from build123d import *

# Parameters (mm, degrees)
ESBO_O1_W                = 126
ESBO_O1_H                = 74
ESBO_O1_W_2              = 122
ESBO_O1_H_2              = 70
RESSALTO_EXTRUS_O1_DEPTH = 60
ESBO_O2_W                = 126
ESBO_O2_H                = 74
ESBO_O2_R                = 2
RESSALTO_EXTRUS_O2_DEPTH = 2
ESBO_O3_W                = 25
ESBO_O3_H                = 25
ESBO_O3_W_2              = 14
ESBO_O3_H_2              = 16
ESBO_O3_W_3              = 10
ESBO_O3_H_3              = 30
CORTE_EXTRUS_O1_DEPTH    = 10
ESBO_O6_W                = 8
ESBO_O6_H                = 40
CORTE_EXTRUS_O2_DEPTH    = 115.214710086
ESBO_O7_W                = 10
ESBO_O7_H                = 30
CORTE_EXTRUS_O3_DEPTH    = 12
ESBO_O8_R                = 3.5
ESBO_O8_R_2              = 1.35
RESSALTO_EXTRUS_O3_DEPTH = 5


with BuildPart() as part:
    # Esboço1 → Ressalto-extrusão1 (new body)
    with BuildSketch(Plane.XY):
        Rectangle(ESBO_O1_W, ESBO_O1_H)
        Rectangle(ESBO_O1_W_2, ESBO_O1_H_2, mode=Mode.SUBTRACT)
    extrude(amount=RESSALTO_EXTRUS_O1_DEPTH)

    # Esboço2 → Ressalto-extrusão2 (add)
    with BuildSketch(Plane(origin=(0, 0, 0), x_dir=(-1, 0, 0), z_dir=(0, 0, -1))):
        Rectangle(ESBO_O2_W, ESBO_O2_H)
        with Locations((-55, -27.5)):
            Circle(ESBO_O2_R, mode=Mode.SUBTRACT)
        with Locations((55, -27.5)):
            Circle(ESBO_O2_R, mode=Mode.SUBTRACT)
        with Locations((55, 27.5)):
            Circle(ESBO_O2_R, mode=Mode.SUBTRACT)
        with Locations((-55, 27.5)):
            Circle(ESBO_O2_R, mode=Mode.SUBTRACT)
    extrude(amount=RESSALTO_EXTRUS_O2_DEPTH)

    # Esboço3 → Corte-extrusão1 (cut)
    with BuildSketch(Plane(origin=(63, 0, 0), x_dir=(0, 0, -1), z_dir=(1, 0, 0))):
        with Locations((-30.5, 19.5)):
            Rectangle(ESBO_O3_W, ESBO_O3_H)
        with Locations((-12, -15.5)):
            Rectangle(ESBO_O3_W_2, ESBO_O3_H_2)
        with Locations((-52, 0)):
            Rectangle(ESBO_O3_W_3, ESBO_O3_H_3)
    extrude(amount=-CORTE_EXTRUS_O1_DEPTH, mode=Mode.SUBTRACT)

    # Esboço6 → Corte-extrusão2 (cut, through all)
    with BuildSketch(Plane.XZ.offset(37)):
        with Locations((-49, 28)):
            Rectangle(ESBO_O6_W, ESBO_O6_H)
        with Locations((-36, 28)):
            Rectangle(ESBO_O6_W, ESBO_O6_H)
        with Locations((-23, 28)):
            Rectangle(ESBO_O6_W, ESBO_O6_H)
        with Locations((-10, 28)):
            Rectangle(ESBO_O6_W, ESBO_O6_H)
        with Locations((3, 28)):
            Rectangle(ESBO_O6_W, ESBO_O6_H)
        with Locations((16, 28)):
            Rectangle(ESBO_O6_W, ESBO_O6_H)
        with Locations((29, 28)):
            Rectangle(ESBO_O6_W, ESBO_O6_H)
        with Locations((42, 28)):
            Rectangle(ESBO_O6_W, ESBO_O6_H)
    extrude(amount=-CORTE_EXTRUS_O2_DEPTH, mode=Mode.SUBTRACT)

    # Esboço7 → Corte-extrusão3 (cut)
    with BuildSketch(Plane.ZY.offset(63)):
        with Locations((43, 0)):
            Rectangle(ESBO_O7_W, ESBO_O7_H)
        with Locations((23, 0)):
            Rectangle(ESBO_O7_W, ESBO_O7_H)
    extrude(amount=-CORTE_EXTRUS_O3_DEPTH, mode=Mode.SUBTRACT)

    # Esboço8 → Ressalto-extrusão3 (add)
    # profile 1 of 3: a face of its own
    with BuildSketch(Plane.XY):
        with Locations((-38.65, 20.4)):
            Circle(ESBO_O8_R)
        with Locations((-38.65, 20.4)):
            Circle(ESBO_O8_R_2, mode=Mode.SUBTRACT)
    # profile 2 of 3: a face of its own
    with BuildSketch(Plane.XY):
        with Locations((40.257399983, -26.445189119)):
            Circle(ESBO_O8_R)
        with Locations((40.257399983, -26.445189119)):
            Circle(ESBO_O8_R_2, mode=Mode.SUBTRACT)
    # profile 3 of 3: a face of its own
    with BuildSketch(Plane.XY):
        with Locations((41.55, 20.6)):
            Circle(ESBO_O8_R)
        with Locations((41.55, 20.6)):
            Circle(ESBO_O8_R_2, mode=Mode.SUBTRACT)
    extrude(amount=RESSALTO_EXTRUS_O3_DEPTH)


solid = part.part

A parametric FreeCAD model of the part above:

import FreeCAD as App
import Part
import Sketcher

V = App.Vector
Q = App.Units.Quantity

doc = App.newDocument("Part")
body = doc.addObject("PartDesign::Body", "Body")

sketch1 = body.newObject("Sketcher::SketchObject", "Sketch")
sketch1.AttachmentSupport = (doc.getObject("XY_Plane"), [""])
sketch1.MapMode = "FlatFace"
sketch1.addGeometry(Part.LineSegment(V(-63, 37, 0), V(-63, -37, 0)), False)
sketch1.addGeometry(Part.LineSegment(V(-63, -37, 0), V(63, -37, 0)), False)
sketch1.addGeometry(Part.LineSegment(V(63, -37, 0), V(63, 37, 0)), False)
sketch1.addGeometry(Part.LineSegment(V(63, 37, 0), V(-63, 37, 0)), False)
sketch1.addGeometry(Part.LineSegment(V(61, -35, 0), V(-61, -35, 0)), False)
sketch1.addGeometry(Part.LineSegment(V(-61, -35, 0), V(-61, 35, 0)), False)
sketch1.addGeometry(Part.LineSegment(V(-61, 35, 0), V(61, 35, 0)), False)
sketch1.addGeometry(Part.LineSegment(V(61, 35, 0), V(61, -35, 0)), False)
sketch1.addConstraint(Sketcher.Constraint("Coincident", 0, 2, 1, 1))
sketch1.addConstraint(Sketcher.Constraint("Coincident", 1, 2, 2, 1))
sketch1.addConstraint(Sketcher.Constraint("Coincident", 2, 2, 3, 1))
sketch1.addConstraint(Sketcher.Constraint("Coincident", 3, 2, 0, 1))
sketch1.addConstraint(Sketcher.Constraint("Coincident", 4, 2, 5, 1))
sketch1.addConstraint(Sketcher.Constraint("Coincident", 5, 2, 6, 1))
sketch1.addConstraint(Sketcher.Constraint("Coincident", 6, 2, 7, 1))
sketch1.addConstraint(Sketcher.Constraint("Coincident", 7, 2, 4, 1))
sketch1.addConstraint(Sketcher.Constraint("Vertical", 0))
sketch1.addConstraint(Sketcher.Constraint("Horizontal", 1))
sketch1.addConstraint(Sketcher.Constraint("Vertical", 2))
sketch1.addConstraint(Sketcher.Constraint("Horizontal", 3))
sketch1.addConstraint(Sketcher.Constraint("Horizontal", 4))
sketch1.addConstraint(Sketcher.Constraint("Vertical", 5))
sketch1.addConstraint(Sketcher.Constraint("Horizontal", 6))
sketch1.addConstraint(Sketcher.Constraint("Vertical", 7))
sketch1.addConstraint(Sketcher.Constraint("Symmetric", 0, 2, 2, 2, -1, 1))
sketch1.addConstraint(Sketcher.Constraint("Symmetric", 4, 2, 6, 2, -1, 1))
sketch1.addConstraint(Sketcher.Constraint("DistanceX", 1, 1, 1, 2, Q("126 mm")))
sketch1.addConstraint(Sketcher.Constraint("DistanceX", 4, 2, 4, 1, Q("122 mm")))
sketch1.addConstraint(Sketcher.Constraint("DistanceY", 0, 2, 0, 1, Q("74 mm")))
sketch1.addConstraint(Sketcher.Constraint("DistanceY", 5, 1, 5, 2, Q("70 mm")))
pad1 = body.newObject("PartDesign::Pad", "Pad")
pad1.Profile = sketch1
pad1.Length = 60

sketch2 = body.newObject("Sketcher::SketchObject", "Sketch001")
sketch2.AttachmentSupport = (doc.getObject("XY_Plane"), [""])
sketch2.MapMode = "FlatFace"
sketch2.addGeometry(Part.LineSegment(V(63, 37, 0), V(63, -37, 0)), False)
sketch2.addGeometry(Part.LineSegment(V(63, -37, 0), V(-63, -37, 0)), False)
sketch2.addGeometry(Part.LineSegment(V(-63, -37, 0), V(-63, 37, 0)), False)
sketch2.addGeometry(Part.LineSegment(V(-63, 37, 0), V(63, 37, 0)), False)
sketch2.addGeometry(Part.Circle(V(55, -27.5, 0), V(0, 0, 1), 2), False)
sketch2.addGeometry(Part.Circle(V(-55, -27.5, 0), V(0, 0, 1), 2), False)
sketch2.addGeometry(Part.Circle(V(55, 27.5, 0), V(0, 0, 1), 2), False)
sketch2.addGeometry(Part.Circle(V(-55, 27.5, 0), V(0, 0, 1), 2), False)
sketch2.addConstraint(Sketcher.Constraint("Coincident", 0, 2, 1, 1))
sketch2.addConstraint(Sketcher.Constraint("Coincident", 1, 2, 2, 1))
sketch2.addConstraint(Sketcher.Constraint("Coincident", 2, 2, 3, 1))
sketch2.addConstraint(Sketcher.Constraint("Coincident", 3, 2, 0, 1))
sketch2.addConstraint(Sketcher.Constraint("Vertical", 0))
sketch2.addConstraint(Sketcher.Constraint("Horizontal", 1))
sketch2.addConstraint(Sketcher.Constraint("Vertical", 2))
sketch2.addConstraint(Sketcher.Constraint("Horizontal", 3))
sketch2.addConstraint(Sketcher.Constraint("Equal", 4, 5))
sketch2.addConstraint(Sketcher.Constraint("Equal", 5, 6))
sketch2.addConstraint(Sketcher.Constraint("Equal", 6, 7))
sketch2.addConstraint(Sketcher.Constraint("Symmetric", 5, 3, 6, 3, -1, 1))
sketch2.addConstraint(Sketcher.Constraint("Symmetric", 4, 3, 7, 3, -1, 1))
sketch2.addConstraint(Sketcher.Constraint("Symmetric", 0, 2, 2, 2, -1, 1))
sketch2.addConstraint(Sketcher.Constraint("Symmetric", 4, 3, 5, 3, -2))
sketch2.addConstraint(Sketcher.Constraint("Diameter", 4, Q("4 mm")))
sketch2.addConstraint(Sketcher.Constraint("DistanceX", 1, 2, 1, 1, Q("126 mm")))
sketch2.addConstraint(Sketcher.Constraint("DistanceY", 0, 2, 0, 1, Q("74 mm")))
sketch2.addConstraint(Sketcher.Constraint("DistanceX", -1, 1, 4, 3, Q("55 mm")))
sketch2.addConstraint(Sketcher.Constraint("DistanceY", 4, 3, 6, 3, Q("55 mm")))
pad2 = body.newObject("PartDesign::Pad", "Pad001")
pad2.Profile = sketch2
pad2.Length = 2
pad2.Reversed = True

sketch3 = body.newObject("Sketcher::SketchObject", "Sketch002")
sketch3.AttachmentSupport = (doc.getObject("YZ_Plane"), [""])
sketch3.MapMode = "FlatFace"
sketch3.AttachmentOffset = App.Placement(V(0, 0, 63), App.Rotation())
sketch3.addGeometry(Part.LineSegment(V(32, 43, 0), V(7, 43, 0)), False)
sketch3.addGeometry(Part.LineSegment(V(7, 43, 0), V(7, 18, 0)), False)
sketch3.addGeometry(Part.LineSegment(V(7, 18, 0), V(32, 18, 0)), False)
sketch3.addGeometry(Part.LineSegment(V(32, 18, 0), V(32, 43, 0)), False)
sketch3.addGeometry(Part.LineSegment(V(-8, 19, 0), V(-24, 19, 0)), False)
sketch3.addGeometry(Part.LineSegment(V(-24, 19, 0), V(-24, 5, 0)), False)
sketch3.addGeometry(Part.LineSegment(V(-24, 5, 0), V(-8, 5, 0)), False)
sketch3.addGeometry(Part.LineSegment(V(-8, 5, 0), V(-8, 19, 0)), False)
sketch3.addGeometry(Part.LineSegment(V(15, 57, 0), V(-15, 57, 0)), False)
sketch3.addGeometry(Part.LineSegment(V(-15, 57, 0), V(-15, 47, 0)), False)
sketch3.addGeometry(Part.LineSegment(V(-15, 47, 0), V(15, 47, 0)), False)
sketch3.addGeometry(Part.LineSegment(V(15, 47, 0), V(15, 57, 0)), False)
sketch3.addConstraint(Sketcher.Constraint("Coincident", 0, 2, 1, 1))
sketch3.addConstraint(Sketcher.Constraint("Coincident", 1, 2, 2, 1))
sketch3.addConstraint(Sketcher.Constraint("Coincident", 2, 2, 3, 1))
sketch3.addConstraint(Sketcher.Constraint("Coincident", 3, 2, 0, 1))
sketch3.addConstraint(Sketcher.Constraint("Coincident", 4, 2, 5, 1))
sketch3.addConstraint(Sketcher.Constraint("Coincident", 5, 2, 6, 1))
sketch3.addConstraint(Sketcher.Constraint("Coincident", 6, 2, 7, 1))
sketch3.addConstraint(Sketcher.Constraint("Coincident", 7, 2, 4, 1))
sketch3.addConstraint(Sketcher.Constraint("Coincident", 8, 2, 9, 1))
sketch3.addConstraint(Sketcher.Constraint("Coincident", 9, 2, 10, 1))
sketch3.addConstraint(Sketcher.Constraint("Coincident", 10, 2, 11, 1))
sketch3.addConstraint(Sketcher.Constraint("Coincident", 11, 2, 8, 1))
sketch3.addConstraint(Sketcher.Constraint("Horizontal", 0))
sketch3.addConstraint(Sketcher.Constraint("Vertical", 1))
sketch3.addConstraint(Sketcher.Constraint("Horizontal", 2))
sketch3.addConstraint(Sketcher.Constraint("Vertical", 3))
sketch3.addConstraint(Sketcher.Constraint("Horizontal", 4))
sketch3.addConstraint(Sketcher.Constraint("Vertical", 5))
sketch3.addConstraint(Sketcher.Constraint("Horizontal", 6))
sketch3.addConstraint(Sketcher.Constraint("Vertical", 7))
sketch3.addConstraint(Sketcher.Constraint("Horizontal", 8))
sketch3.addConstraint(Sketcher.Constraint("Vertical", 9))
sketch3.addConstraint(Sketcher.Constraint("Horizontal", 10))
sketch3.addConstraint(Sketcher.Constraint("Vertical", 11))
sketch3.addConstraint(Sketcher.Constraint("Equal", 2, 1))
sketch3.addConstraint(Sketcher.Constraint("DistanceX", 0, 2, 0, 1, Q("25 mm")))
sketch3.addConstraint(Sketcher.Constraint("DistanceX", 4, 2, 4, 1, Q("16 mm")))
sketch3.addConstraint(Sketcher.Constraint("DistanceX", 8, 2, 8, 1, Q("30 mm")))
sketch3.addConstraint(Sketcher.Constraint("DistanceY", 5, 2, 5, 1, Q("14 mm")))
sketch3.addConstraint(Sketcher.Constraint("DistanceY", 9, 2, 9, 1, Q("10 mm")))
sketch3.addConstraint(Sketcher.Constraint("DistanceX", -1, 1, 0, 2, Q("7 mm")))
sketch3.addConstraint(Sketcher.Constraint("DistanceY", -1, 1, 0, 2, Q("43 mm")))
sketch3.addConstraint(Sketcher.Constraint("DistanceY", -1, 1, 4, 2, Q("19 mm")))
sketch3.addConstraint(Sketcher.Constraint("DistanceX", 8, 2, -1, 1, Q("15 mm")))
sketch3.addConstraint(Sketcher.Constraint("DistanceY", -1, 1, 8, 2, Q("57 mm")))
sketch3.addConstraint(Sketcher.Constraint("DistanceX", 4, 2, -1, 1, Q("23.5 mm")))
pocket1 = body.newObject("PartDesign::Pocket", "Pocket")
pocket1.Profile = sketch3
pocket1.Length = 10

sketch4 = body.newObject("Sketcher::SketchObject", "Sketch003")
sketch4.AttachmentSupport = (doc.getObject("XZ_Plane"), [""])
sketch4.MapMode = "FlatFace"
sketch4.AttachmentOffset = App.Placement(V(0, 0, 37), App.Rotation())
sketch4.addGeometry(Part.LineSegment(V(-53, 48, 0), V(-53, 8, 0)), False)
sketch4.addGeometry(Part.LineSegment(V(-53, 8, 0), V(-45, 8, 0)), False)
sketch4.addGeometry(Part.LineSegment(V(-45, 8, 0), V(-45, 48, 0)), False)
sketch4.addGeometry(Part.LineSegment(V(-45, 48, 0), V(-53, 48, 0)), False)
sketch4.addGeometry(Part.LineSegment(V(-40, 48, 0), V(-40, 8, 0)), False)
sketch4.addGeometry(Part.LineSegment(V(-40, 8, 0), V(-32, 8, 0)), False)
sketch4.addGeometry(Part.LineSegment(V(-32, 8, 0), V(-32, 48, 0)), False)
sketch4.addGeometry(Part.LineSegment(V(-32, 48, 0), V(-40, 48, 0)), False)
sketch4.addGeometry(Part.LineSegment(V(-27, 48, 0), V(-27, 8, 0)), False)
sketch4.addGeometry(Part.LineSegment(V(-27, 8, 0), V(-19, 8, 0)), False)
sketch4.addGeometry(Part.LineSegment(V(-19, 8, 0), V(-19, 48, 0)), False)
sketch4.addGeometry(Part.LineSegment(V(-19, 48, 0), V(-27, 48, 0)), False)
sketch4.addGeometry(Part.LineSegment(V(-14, 48, 0), V(-14, 8, 0)), False)
sketch4.addGeometry(Part.LineSegment(V(-14, 8, 0), V(-6, 8, 0)), False)
sketch4.addGeometry(Part.LineSegment(V(-6, 8, 0), V(-6, 48, 0)), False)
sketch4.addGeometry(Part.LineSegment(V(-6, 48, 0), V(-14, 48, 0)), False)
sketch4.addGeometry(Part.LineSegment(V(-1, 48, 0), V(-1, 8, 0)), False)
sketch4.addGeometry(Part.LineSegment(V(-1, 8, 0), V(7, 8, 0)), False)
sketch4.addGeometry(Part.LineSegment(V(7, 8, 0), V(7, 48, 0)), False)
sketch4.addGeometry(Part.LineSegment(V(7, 48, 0), V(-1, 48, 0)), False)
sketch4.addGeometry(Part.LineSegment(V(12, 48, 0), V(12, 8, 0)), False)
sketch4.addGeometry(Part.LineSegment(V(12, 8, 0), V(20, 8, 0)), False)
sketch4.addGeometry(Part.LineSegment(V(20, 8, 0), V(20, 48, 0)), False)
sketch4.addGeometry(Part.LineSegment(V(20, 48, 0), V(12, 48, 0)), False)
sketch4.addGeometry(Part.LineSegment(V(25, 48, 0), V(25, 8, 0)), False)
sketch4.addGeometry(Part.LineSegment(V(25, 8, 0), V(33, 8, 0)), False)
sketch4.addGeometry(Part.LineSegment(V(33, 8, 0), V(33, 48, 0)), False)
sketch4.addGeometry(Part.LineSegment(V(33, 48, 0), V(25, 48, 0)), False)
sketch4.addGeometry(Part.LineSegment(V(38, 48, 0), V(38, 8, 0)), False)
sketch4.addGeometry(Part.LineSegment(V(38, 8, 0), V(46, 8, 0)), False)
sketch4.addGeometry(Part.LineSegment(V(46, 8, 0), V(46, 48, 0)), False)
sketch4.addGeometry(Part.LineSegment(V(46, 48, 0), V(38, 48, 0)), False)
sketch4.addConstraint(Sketcher.Constraint("Coincident", 0, 2, 1, 1))
sketch4.addConstraint(Sketcher.Constraint("Coincident", 1, 2, 2, 1))
sketch4.addConstraint(Sketcher.Constraint("Coincident", 2, 2, 3, 1))
sketch4.addConstraint(Sketcher.Constraint("Coincident", 3, 2, 0, 1))
sketch4.addConstraint(Sketcher.Constraint("Coincident", 4, 2, 5, 1))
sketch4.addConstraint(Sketcher.Constraint("Coincident", 5, 2, 6, 1))
sketch4.addConstraint(Sketcher.Constraint("Coincident", 6, 2, 7, 1))
sketch4.addConstraint(Sketcher.Constraint("Coincident", 7, 2, 4, 1))
sketch4.addConstraint(Sketcher.Constraint("Coincident", 8, 2, 9, 1))
sketch4.addConstraint(Sketcher.Constraint("Coincident", 9, 2, 10, 1))
sketch4.addConstraint(Sketcher.Constraint("Coincident", 10, 2, 11, 1))
sketch4.addConstraint(Sketcher.Constraint("Coincident", 11, 2, 8, 1))
sketch4.addConstraint(Sketcher.Constraint("Coincident", 12, 2, 13, 1))
sketch4.addConstraint(Sketcher.Constraint("Coincident", 13, 2, 14, 1))
sketch4.addConstraint(Sketcher.Constraint("Coincident", 14, 2, 15, 1))
sketch4.addConstraint(Sketcher.Constraint("Coincident", 15, 2, 12, 1))
sketch4.addConstraint(Sketcher.Constraint("Coincident", 16, 2, 17, 1))
sketch4.addConstraint(Sketcher.Constraint("Coincident", 17, 2, 18, 1))
sketch4.addConstraint(Sketcher.Constraint("Coincident", 18, 2, 19, 1))
sketch4.addConstraint(Sketcher.Constraint("Coincident", 19, 2, 16, 1))
sketch4.addConstraint(Sketcher.Constraint("Coincident", 20, 2, 21, 1))
sketch4.addConstraint(Sketcher.Constraint("Coincident", 21, 2, 22, 1))
sketch4.addConstraint(Sketcher.Constraint("Coincident", 22, 2, 23, 1))
sketch4.addConstraint(Sketcher.Constraint("Coincident", 23, 2, 20, 1))
sketch4.addConstraint(Sketcher.Constraint("Coincident", 24, 2, 25, 1))
sketch4.addConstraint(Sketcher.Constraint("Coincident", 25, 2, 26, 1))
sketch4.addConstraint(Sketcher.Constraint("Coincident", 26, 2, 27, 1))
sketch4.addConstraint(Sketcher.Constraint("Coincident", 27, 2, 24, 1))
sketch4.addConstraint(Sketcher.Constraint("Coincident", 28, 2, 29, 1))
sketch4.addConstraint(Sketcher.Constraint("Coincident", 29, 2, 30, 1))
sketch4.addConstraint(Sketcher.Constraint("Coincident", 30, 2, 31, 1))
sketch4.addConstraint(Sketcher.Constraint("Coincident", 31, 2, 28, 1))
sketch4.addConstraint(Sketcher.Constraint("Vertical", 0))
sketch4.addConstraint(Sketcher.Constraint("Horizontal", 1))
sketch4.addConstraint(Sketcher.Constraint("Vertical", 2))
sketch4.addConstraint(Sketcher.Constraint("Horizontal", 3))
sketch4.addConstraint(Sketcher.Constraint("Vertical", 4))
sketch4.addConstraint(Sketcher.Constraint("Horizontal", 5))
sketch4.addConstraint(Sketcher.Constraint("Vertical", 6))
sketch4.addConstraint(Sketcher.Constraint("Horizontal", 7))
sketch4.addConstraint(Sketcher.Constraint("Vertical", 8))
sketch4.addConstraint(Sketcher.Constraint("Horizontal", 9))
sketch4.addConstraint(Sketcher.Constraint("Vertical", 10))
sketch4.addConstraint(Sketcher.Constraint("Horizontal", 11))
sketch4.addConstraint(Sketcher.Constraint("Vertical", 12))
sketch4.addConstraint(Sketcher.Constraint("Horizontal", 13))
sketch4.addConstraint(Sketcher.Constraint("Vertical", 14))
sketch4.addConstraint(Sketcher.Constraint("Horizontal", 15))
sketch4.addConstraint(Sketcher.Constraint("Vertical", 16))
sketch4.addConstraint(Sketcher.Constraint("Horizontal", 17))
sketch4.addConstraint(Sketcher.Constraint("Vertical", 18))
sketch4.addConstraint(Sketcher.Constraint("Horizontal", 19))
sketch4.addConstraint(Sketcher.Constraint("Vertical", 20))
sketch4.addConstraint(Sketcher.Constraint("Horizontal", 21))
sketch4.addConstraint(Sketcher.Constraint("Vertical", 22))
sketch4.addConstraint(Sketcher.Constraint("Horizontal", 23))
sketch4.addConstraint(Sketcher.Constraint("Vertical", 24))
sketch4.addConstraint(Sketcher.Constraint("Horizontal", 25))
sketch4.addConstraint(Sketcher.Constraint("Vertical", 26))
sketch4.addConstraint(Sketcher.Constraint("Horizontal", 27))
sketch4.addConstraint(Sketcher.Constraint("Vertical", 28))
sketch4.addConstraint(Sketcher.Constraint("Horizontal", 29))
sketch4.addConstraint(Sketcher.Constraint("Vertical", 30))
sketch4.addConstraint(Sketcher.Constraint("Horizontal", 31))
sketch4.addConstraint(Sketcher.Constraint("Horizontal", 1, 2, 4, 2))
sketch4.addConstraint(Sketcher.Constraint("Horizontal", 3, 2, 6, 2))
sketch4.addConstraint(Sketcher.Constraint("Horizontal", 5, 2, 8, 2))
sketch4.addConstraint(Sketcher.Constraint("Horizontal", 7, 2, 10, 2))
sketch4.addConstraint(Sketcher.Constraint("Horizontal", 9, 2, 12, 2))
sketch4.addConstraint(Sketcher.Constraint("Horizontal", 11, 2, 14, 2))
sketch4.addConstraint(Sketcher.Constraint("Horizontal", 13, 2, 16, 2))
sketch4.addConstraint(Sketcher.Constraint("Horizontal", 15, 2, 18, 2))
sketch4.addConstraint(Sketcher.Constraint("Horizontal", 17, 2, 20, 2))
sketch4.addConstraint(Sketcher.Constraint("Horizontal", 19, 2, 22, 2))
sketch4.addConstraint(Sketcher.Constraint("Horizontal", 21, 2, 24, 2))
sketch4.addConstraint(Sketcher.Constraint("Horizontal", 23, 2, 26, 2))
sketch4.addConstraint(Sketcher.Constraint("Horizontal", 25, 2, 28, 2))
sketch4.addConstraint(Sketcher.Constraint("Horizontal", 27, 2, 30, 2))
sketch4.addConstraint(Sketcher.Constraint("Equal", 3, 5))
sketch4.addConstraint(Sketcher.Constraint("Equal", 7, 9))
sketch4.addConstraint(Sketcher.Constraint("Equal", 11, 13))
sketch4.addConstraint(Sketcher.Constraint("Equal", 15, 17))
sketch4.addConstraint(Sketcher.Constraint("Equal", 19, 21))
sketch4.addConstraint(Sketcher.Constraint("Equal", 23, 25))
sketch4.addConstraint(Sketcher.Constraint("Equal", 27, 29))
sketch4.addConstraint(Sketcher.Constraint("DistanceX", 1, 1, 1, 2, Q("8 mm")))
sketch4.addConstraint(Sketcher.Constraint("DistanceY", 0, 2, 0, 1, Q("40 mm")))
sketch4.addConstraint(Sketcher.Constraint("DistanceX", 0, 2, -1, 1, Q("53 mm")))
sketch4.addConstraint(Sketcher.Constraint("DistanceY", -1, 1, 0, 2, Q("8 mm")))
sketch4.addConstraint(Sketcher.Constraint("DistanceX", 4, 2, -1, 1, Q("40 mm")))
sketch4.addConstraint(Sketcher.Constraint("DistanceX", 8, 2, -1, 1, Q("27 mm")))
sketch4.addConstraint(Sketcher.Constraint("DistanceX", 12, 2, -1, 1, Q("14 mm")))
sketch4.addConstraint(Sketcher.Constraint("DistanceX", 16, 2, -1, 1, Q("1 mm")))
sketch4.addConstraint(Sketcher.Constraint("DistanceX", -1, 1, 20, 2, Q("12 mm")))
sketch4.addConstraint(Sketcher.Constraint("DistanceX", -1, 1, 24, 2, Q("25 mm")))
sketch4.addConstraint(Sketcher.Constraint("DistanceX", -1, 1, 28, 2, Q("38 mm")))
pocket2 = body.newObject("PartDesign::Pocket", "Pocket001")
pocket2.Profile = sketch4
pocket2.Type = "ThroughAll"

sketch5 = body.newObject("Sketcher::SketchObject", "Sketch004")
sketch5.AttachmentSupport = (doc.getObject("YZ_Plane"), [""])
sketch5.MapMode = "FlatFace"
sketch5.AttachmentOffset = App.Placement(V(0, 0, -63), App.Rotation())
sketch5.addGeometry(Part.LineSegment(V(15, 38, 0), V(-15, 38, 0)), False)
sketch5.addGeometry(Part.LineSegment(V(-15, 38, 0), V(-15, 48, 0)), False)
sketch5.addGeometry(Part.LineSegment(V(-15, 48, 0), V(15, 48, 0)), False)
sketch5.addGeometry(Part.LineSegment(V(15, 48, 0), V(15, 38, 0)), False)
sketch5.addGeometry(Part.LineSegment(V(15, 18, 0), V(-15, 18, 0)), False)
sketch5.addGeometry(Part.LineSegment(V(-15, 18, 0), V(-15, 28, 0)), False)
sketch5.addGeometry(Part.LineSegment(V(-15, 28, 0), V(15, 28, 0)), False)
sketch5.addGeometry(Part.LineSegment(V(15, 28, 0), V(15, 18, 0)), False)
sketch5.addConstraint(Sketcher.Constraint("Coincident", 0, 2, 1, 1))
sketch5.addConstraint(Sketcher.Constraint("Coincident", 1, 2, 2, 1))
sketch5.addConstraint(Sketcher.Constraint("Coincident", 2, 2, 3, 1))
sketch5.addConstraint(Sketcher.Constraint("Coincident", 3, 2, 0, 1))
sketch5.addConstraint(Sketcher.Constraint("Coincident", 4, 2, 5, 1))
sketch5.addConstraint(Sketcher.Constraint("Coincident", 5, 2, 6, 1))
sketch5.addConstraint(Sketcher.Constraint("Coincident", 6, 2, 7, 1))
sketch5.addConstraint(Sketcher.Constraint("Coincident", 7, 2, 4, 1))
sketch5.addConstraint(Sketcher.Constraint("Horizontal", 0))
sketch5.addConstraint(Sketcher.Constraint("Vertical", 1))
sketch5.addConstraint(Sketcher.Constraint("Horizontal", 2))
sketch5.addConstraint(Sketcher.Constraint("Vertical", 3))
sketch5.addConstraint(Sketcher.Constraint("Horizontal", 4))
sketch5.addConstraint(Sketcher.Constraint("Vertical", 5))
sketch5.addConstraint(Sketcher.Constraint("Horizontal", 6))
sketch5.addConstraint(Sketcher.Constraint("Vertical", 7))
sketch5.addConstraint(Sketcher.Constraint("Vertical", 1, 2, 4, 2))
sketch5.addConstraint(Sketcher.Constraint("Vertical", 3, 2, 6, 2))
sketch5.addConstraint(Sketcher.Constraint("Equal", 3, 5))
sketch5.addConstraint(Sketcher.Constraint("DistanceX", 0, 2, 0, 1, Q("30 mm")))
sketch5.addConstraint(Sketcher.Constraint("DistanceY", 1, 1, 1, 2, Q("10 mm")))
sketch5.addConstraint(Sketcher.Constraint("DistanceX", 0, 2, -1, 1, Q("15 mm")))
sketch5.addConstraint(Sketcher.Constraint("DistanceY", -1, 1, 0, 2, Q("38 mm")))
sketch5.addConstraint(Sketcher.Constraint("DistanceY", -1, 1, 4, 2, Q("18 mm")))
pocket3 = body.newObject("PartDesign::Pocket", "Pocket002")
pocket3.Profile = sketch5
pocket3.Length = 12
pocket3.Reversed = True

sketch6 = body.newObject("Sketcher::SketchObject", "Sketch005")
sketch6.AttachmentSupport = (doc.getObject("XY_Plane"), [""])
sketch6.MapMode = "FlatFace"
sketch6.addGeometry(Part.Circle(V(-38.6, 20.4, 0), V(0, 0, 1), 3.5), False)
sketch6.addGeometry(Part.Circle(V(-38.6, 20.4, 0), V(0, 0, 1), 1.4), False)
sketch6.addGeometry(Part.Circle(V(40.3, -26.4, 0), V(0, 0, 1), 3.5), False)
sketch6.addGeometry(Part.Circle(V(40.3, -26.4, 0), V(0, 0, 1), 1.4), False)
sketch6.addGeometry(Part.Circle(V(41.5, 20.6, 0), V(0, 0, 1), 3.5), False)
sketch6.addGeometry(Part.Circle(V(41.5, 20.6, 0), V(0, 0, 1), 1.4), False)
sketch6.addConstraint(Sketcher.Constraint("Coincident", 1, 3, 0, 3))
sketch6.addConstraint(Sketcher.Constraint("Coincident", 3, 3, 2, 3))
sketch6.addConstraint(Sketcher.Constraint("Coincident", 5, 3, 4, 3))
sketch6.addConstraint(Sketcher.Constraint("Equal", 0, 2))
sketch6.addConstraint(Sketcher.Constraint("Equal", 1, 3))
sketch6.addConstraint(Sketcher.Constraint("Equal", 2, 4))
sketch6.addConstraint(Sketcher.Constraint("Equal", 3, 5))
sketch6.addConstraint(Sketcher.Constraint("Diameter", 0, Q("7 mm")))
sketch6.addConstraint(Sketcher.Constraint("Diameter", 1, Q("2.7 mm")))
sketch6.addConstraint(Sketcher.Constraint("DistanceY", -1, 1, 0, 3, Q("20.4 mm")))
sketch6.addConstraint(Sketcher.Constraint("DistanceY", -1, 1, 4, 3, Q("20.6 mm")))
sketch6.addConstraint(Sketcher.Constraint("DistanceX", 0, 3, 4, 3, Q("80.2 mm")))
sketch6.addConstraint(Sketcher.Constraint("DistanceX", 0, 3, -1, 1, Q("38.65 mm")))
sketch6.addConstraint(Sketcher.Constraint("DistanceX", -1, 1, 2, 3, Q("40.2574 mm")))
sketch6.addConstraint(Sketcher.Constraint("DistanceY", 2, 3, -1, 1, Q("26.445189 mm")))
pad3 = body.newObject("PartDesign::Pad", "Pad002")
pad3.Profile = sketch6
pad3.Length = 5

doc.recompute()
